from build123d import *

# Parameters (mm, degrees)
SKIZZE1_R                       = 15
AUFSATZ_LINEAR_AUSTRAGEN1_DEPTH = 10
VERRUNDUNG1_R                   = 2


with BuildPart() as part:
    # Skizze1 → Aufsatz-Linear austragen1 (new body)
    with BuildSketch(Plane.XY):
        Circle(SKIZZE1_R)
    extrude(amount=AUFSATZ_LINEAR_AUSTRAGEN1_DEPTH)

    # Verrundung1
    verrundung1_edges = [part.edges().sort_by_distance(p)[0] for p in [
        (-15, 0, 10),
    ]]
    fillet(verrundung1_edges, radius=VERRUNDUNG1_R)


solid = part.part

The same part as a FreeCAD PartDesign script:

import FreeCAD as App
import Part
import Sketcher
Q = App.Units.Quantity


def edges_at(feature, points):
    """Names of the edges that pass closest to the given points."""
    edges = feature.Shape.Edges
    near = lambda p: min(range(len(edges)), key=lambda i: edges[i].distToShape(Part.Vertex(*p))[0])
    return sorted({f"Edge{near(p) + 1}" for p in points})

doc = App.newDocument("Part")
body = doc.addObject("PartDesign::Body", "Body")

# Sketch on XY plane
sketch1 = body.newObject("Sketcher::SketchObject", "Sketch")
sketch1.AttachmentSupport = (doc.getObject("XY_Plane"), [""])
sketch1.MapMode = "FlatFace"
sketch1.addGeometry(Part.Circle(App.Vector(0, 0, 0), App.Vector(0, 0, 1), 15), False)
sketch1.addConstraint(Sketcher.Constraint("Coincident", 0, 3, -1, 1))
sketch1.addConstraint(Sketcher.Constraint("Diameter", 0, Q("30 mm")))
pad1 = body.newObject("PartDesign::Pad", "Pad")
pad1.Profile = sketch1
pad1.Length = 10
doc.recompute()

fillet = body.newObject("PartDesign::Fillet", "Fillet")
fillet.Base = (pad1, edges_at(pad1, [(-15, 0, 10)]))
fillet.Radius = 2

doc.recompute()
